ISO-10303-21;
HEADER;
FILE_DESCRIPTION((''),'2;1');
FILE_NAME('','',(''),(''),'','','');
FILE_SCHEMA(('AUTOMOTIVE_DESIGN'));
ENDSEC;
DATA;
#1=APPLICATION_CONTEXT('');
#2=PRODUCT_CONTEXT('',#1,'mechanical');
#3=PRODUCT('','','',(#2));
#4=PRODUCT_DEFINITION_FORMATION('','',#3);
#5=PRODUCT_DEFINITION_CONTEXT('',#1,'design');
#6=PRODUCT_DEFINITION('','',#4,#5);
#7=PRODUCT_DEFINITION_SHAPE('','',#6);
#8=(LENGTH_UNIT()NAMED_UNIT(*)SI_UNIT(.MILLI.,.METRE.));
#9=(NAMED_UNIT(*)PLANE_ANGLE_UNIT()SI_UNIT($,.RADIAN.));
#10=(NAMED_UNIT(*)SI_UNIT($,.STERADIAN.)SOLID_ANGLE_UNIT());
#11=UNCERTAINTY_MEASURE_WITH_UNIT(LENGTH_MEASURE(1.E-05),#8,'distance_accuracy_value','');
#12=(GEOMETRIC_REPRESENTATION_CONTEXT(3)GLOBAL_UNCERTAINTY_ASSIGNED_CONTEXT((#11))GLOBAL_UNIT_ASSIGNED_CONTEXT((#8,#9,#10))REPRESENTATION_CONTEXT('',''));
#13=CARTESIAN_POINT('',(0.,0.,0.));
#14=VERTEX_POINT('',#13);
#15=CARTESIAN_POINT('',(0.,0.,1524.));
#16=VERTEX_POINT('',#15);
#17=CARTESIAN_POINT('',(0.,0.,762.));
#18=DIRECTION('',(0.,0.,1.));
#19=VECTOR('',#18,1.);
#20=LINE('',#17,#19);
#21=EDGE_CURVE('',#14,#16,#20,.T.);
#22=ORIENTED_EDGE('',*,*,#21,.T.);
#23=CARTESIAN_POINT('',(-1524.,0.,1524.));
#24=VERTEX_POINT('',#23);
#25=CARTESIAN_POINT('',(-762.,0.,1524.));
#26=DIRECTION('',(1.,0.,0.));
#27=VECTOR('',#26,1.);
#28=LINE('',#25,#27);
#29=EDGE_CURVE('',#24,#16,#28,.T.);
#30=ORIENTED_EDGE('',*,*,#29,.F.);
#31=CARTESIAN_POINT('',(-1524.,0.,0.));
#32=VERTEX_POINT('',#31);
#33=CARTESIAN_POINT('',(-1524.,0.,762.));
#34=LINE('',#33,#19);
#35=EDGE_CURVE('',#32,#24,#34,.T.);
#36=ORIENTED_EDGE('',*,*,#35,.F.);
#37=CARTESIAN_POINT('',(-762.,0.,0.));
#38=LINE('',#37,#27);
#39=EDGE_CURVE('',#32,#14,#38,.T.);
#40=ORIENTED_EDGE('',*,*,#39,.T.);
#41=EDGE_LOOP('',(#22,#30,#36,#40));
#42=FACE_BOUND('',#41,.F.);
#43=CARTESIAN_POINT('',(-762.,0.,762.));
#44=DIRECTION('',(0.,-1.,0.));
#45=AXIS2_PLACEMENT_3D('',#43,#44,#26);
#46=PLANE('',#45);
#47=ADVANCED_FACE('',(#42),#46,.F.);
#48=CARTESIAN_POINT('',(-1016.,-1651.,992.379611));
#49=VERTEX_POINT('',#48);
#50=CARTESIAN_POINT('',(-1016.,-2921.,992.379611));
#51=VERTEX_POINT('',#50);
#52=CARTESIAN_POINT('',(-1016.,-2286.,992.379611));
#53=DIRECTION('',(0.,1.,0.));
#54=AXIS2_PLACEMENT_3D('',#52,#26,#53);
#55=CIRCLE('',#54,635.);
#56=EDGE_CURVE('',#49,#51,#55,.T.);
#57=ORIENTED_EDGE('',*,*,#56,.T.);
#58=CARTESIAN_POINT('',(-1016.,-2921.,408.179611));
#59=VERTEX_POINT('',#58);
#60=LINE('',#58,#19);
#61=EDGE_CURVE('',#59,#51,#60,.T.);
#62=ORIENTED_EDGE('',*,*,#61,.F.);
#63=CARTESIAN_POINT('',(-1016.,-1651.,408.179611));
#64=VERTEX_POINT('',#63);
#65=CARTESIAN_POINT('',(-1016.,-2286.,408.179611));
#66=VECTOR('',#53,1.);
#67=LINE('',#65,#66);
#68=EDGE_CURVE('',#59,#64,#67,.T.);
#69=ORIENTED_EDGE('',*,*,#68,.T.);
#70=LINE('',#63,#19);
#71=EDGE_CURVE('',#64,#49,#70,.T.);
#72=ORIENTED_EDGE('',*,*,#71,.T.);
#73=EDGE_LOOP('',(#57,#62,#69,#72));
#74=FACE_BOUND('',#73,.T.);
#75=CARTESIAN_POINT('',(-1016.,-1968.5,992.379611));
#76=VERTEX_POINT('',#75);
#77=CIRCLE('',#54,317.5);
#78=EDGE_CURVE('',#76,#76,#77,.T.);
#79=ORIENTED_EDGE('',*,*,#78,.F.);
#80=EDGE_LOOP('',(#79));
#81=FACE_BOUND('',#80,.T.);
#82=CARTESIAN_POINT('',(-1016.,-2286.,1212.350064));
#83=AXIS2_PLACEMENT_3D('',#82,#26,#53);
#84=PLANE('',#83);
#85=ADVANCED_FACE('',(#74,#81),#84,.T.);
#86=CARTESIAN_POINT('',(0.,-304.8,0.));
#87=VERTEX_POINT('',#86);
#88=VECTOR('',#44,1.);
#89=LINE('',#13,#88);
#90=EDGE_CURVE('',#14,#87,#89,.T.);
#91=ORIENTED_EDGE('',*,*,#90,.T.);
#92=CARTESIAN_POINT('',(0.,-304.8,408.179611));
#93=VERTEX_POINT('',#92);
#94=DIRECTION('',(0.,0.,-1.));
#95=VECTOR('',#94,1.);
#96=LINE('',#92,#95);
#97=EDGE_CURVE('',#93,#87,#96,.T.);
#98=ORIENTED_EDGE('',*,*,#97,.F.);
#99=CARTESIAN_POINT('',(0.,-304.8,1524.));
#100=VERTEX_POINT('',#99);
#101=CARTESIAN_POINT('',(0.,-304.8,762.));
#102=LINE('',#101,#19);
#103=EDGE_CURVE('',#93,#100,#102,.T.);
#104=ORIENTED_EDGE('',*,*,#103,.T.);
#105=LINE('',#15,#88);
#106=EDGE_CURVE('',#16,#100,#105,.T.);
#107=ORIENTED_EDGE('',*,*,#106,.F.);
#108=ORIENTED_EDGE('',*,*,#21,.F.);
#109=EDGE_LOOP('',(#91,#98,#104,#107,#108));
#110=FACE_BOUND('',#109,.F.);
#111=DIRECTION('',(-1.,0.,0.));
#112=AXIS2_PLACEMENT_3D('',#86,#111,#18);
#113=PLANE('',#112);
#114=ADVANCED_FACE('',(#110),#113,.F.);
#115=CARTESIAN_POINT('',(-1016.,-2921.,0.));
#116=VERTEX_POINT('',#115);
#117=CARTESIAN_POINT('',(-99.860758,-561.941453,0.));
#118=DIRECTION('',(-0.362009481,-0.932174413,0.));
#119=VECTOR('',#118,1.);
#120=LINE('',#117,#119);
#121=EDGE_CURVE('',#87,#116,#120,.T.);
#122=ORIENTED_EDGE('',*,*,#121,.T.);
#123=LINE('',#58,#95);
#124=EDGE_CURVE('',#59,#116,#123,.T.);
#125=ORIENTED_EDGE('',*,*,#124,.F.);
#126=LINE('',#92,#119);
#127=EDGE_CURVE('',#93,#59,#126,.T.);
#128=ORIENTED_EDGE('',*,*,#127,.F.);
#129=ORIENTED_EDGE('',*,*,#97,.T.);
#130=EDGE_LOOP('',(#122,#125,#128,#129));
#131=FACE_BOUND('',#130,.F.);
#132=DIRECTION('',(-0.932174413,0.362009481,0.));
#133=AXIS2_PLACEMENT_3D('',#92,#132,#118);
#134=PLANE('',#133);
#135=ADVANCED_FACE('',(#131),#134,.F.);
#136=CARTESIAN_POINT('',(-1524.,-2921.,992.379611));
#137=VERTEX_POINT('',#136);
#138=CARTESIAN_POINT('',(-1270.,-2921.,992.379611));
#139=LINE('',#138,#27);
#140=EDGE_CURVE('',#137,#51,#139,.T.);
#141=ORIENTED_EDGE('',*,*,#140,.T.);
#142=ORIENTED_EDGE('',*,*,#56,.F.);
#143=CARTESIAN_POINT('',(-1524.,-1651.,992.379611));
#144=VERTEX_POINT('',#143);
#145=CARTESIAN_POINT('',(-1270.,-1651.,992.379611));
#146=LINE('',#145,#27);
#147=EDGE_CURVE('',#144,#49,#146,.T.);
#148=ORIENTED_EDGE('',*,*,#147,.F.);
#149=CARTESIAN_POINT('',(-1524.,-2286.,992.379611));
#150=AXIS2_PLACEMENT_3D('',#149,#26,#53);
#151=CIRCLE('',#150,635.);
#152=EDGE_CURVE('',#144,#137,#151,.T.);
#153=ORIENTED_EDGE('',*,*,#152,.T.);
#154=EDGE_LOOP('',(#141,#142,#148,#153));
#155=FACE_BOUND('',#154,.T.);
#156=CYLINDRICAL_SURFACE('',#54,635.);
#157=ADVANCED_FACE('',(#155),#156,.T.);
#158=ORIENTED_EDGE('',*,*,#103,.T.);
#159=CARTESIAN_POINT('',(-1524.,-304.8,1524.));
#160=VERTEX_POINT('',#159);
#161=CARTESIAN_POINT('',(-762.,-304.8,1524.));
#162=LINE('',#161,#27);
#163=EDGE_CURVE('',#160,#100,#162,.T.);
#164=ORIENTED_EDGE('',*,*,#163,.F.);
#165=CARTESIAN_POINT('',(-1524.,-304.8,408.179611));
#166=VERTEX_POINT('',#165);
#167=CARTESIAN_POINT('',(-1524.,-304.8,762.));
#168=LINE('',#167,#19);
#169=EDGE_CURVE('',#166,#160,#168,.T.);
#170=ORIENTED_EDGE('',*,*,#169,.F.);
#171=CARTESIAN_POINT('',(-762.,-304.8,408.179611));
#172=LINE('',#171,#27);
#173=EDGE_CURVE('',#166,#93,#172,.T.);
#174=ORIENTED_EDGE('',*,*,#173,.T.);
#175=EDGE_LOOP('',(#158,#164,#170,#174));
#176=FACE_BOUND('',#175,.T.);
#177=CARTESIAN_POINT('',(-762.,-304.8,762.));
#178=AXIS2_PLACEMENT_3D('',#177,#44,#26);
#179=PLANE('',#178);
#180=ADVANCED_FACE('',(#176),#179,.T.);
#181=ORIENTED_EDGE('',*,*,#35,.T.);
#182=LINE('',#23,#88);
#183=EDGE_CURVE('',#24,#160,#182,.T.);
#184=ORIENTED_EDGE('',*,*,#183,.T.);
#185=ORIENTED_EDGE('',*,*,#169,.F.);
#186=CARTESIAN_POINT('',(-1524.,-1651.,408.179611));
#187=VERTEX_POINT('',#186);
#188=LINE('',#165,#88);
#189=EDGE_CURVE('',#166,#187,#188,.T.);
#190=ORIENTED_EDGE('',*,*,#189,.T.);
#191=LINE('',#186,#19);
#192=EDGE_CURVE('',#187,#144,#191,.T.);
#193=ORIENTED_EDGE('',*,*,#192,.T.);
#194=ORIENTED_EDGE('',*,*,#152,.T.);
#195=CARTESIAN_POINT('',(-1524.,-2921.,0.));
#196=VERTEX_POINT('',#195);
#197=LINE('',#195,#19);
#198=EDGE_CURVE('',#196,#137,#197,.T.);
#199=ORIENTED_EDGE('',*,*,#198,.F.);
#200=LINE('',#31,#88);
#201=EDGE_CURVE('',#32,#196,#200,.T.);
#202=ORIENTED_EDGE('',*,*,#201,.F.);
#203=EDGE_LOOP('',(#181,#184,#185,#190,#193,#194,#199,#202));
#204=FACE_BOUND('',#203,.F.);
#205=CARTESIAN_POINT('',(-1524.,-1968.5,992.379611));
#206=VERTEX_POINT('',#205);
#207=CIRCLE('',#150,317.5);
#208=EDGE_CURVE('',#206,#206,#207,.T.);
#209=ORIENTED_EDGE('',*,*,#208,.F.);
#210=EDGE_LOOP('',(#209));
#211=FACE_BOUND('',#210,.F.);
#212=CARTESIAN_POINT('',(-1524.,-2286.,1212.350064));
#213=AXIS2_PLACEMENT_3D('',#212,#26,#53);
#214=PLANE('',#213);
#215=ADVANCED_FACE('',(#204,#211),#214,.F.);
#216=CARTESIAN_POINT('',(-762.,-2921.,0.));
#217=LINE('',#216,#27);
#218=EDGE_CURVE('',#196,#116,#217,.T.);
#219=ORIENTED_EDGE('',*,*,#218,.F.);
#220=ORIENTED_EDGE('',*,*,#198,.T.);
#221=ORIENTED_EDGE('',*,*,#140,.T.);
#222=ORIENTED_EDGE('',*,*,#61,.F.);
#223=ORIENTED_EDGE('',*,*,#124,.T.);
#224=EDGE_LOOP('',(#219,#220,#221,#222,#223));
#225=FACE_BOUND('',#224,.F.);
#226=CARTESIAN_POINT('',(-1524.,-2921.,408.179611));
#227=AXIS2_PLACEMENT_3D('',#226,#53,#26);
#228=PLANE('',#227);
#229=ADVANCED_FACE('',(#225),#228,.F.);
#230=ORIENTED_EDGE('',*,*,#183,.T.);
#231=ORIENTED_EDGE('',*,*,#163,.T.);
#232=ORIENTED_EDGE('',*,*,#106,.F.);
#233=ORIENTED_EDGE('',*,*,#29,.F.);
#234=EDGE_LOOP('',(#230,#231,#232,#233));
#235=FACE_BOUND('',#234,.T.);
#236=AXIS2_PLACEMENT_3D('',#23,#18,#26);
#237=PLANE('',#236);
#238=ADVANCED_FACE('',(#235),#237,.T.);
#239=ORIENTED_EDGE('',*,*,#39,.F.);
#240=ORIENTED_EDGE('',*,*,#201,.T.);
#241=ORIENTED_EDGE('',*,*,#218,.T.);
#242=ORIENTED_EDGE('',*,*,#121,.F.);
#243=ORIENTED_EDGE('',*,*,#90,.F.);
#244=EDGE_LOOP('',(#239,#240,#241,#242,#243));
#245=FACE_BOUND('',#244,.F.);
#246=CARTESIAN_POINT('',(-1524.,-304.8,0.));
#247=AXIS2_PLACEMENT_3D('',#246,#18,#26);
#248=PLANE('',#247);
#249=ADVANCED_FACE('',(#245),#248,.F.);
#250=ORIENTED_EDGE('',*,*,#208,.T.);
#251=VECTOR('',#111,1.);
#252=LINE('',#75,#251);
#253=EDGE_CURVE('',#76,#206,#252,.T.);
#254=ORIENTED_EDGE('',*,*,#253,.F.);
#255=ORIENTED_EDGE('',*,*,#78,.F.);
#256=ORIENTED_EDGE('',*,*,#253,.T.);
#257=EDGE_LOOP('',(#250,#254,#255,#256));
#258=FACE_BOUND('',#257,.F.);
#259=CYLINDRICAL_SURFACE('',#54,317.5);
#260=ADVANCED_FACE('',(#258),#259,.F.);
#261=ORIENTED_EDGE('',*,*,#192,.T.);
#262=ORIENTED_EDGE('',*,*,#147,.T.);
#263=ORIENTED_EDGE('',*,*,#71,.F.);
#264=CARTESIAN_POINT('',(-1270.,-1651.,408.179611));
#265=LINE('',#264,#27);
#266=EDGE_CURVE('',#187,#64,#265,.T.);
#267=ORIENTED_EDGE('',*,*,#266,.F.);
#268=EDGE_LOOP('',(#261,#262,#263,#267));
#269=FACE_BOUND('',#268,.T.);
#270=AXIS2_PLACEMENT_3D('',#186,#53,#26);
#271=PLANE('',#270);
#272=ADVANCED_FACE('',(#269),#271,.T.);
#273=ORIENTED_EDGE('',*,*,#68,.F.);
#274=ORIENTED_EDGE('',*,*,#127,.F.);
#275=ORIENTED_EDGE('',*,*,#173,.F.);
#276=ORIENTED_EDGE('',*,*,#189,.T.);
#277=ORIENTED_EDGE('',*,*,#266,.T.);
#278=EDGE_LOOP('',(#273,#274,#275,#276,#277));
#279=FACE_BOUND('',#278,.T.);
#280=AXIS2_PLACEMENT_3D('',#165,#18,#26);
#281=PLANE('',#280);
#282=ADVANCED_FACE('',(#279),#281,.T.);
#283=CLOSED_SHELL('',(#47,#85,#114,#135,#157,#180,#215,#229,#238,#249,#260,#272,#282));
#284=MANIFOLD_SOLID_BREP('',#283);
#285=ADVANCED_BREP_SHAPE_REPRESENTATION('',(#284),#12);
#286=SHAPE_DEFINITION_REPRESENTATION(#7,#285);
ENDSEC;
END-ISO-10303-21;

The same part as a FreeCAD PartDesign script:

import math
import FreeCAD as App
import Part
import Sketcher

V = App.Vector
Q = App.Units.Quantity


def add_polygon(sketch, points):
    """Adds a closed chain of lines whose ends are joined by coincident constraints."""
    first, n = sketch.GeometryCount, len(points)
    for a, b in zip(points, points[1:] + points[:1]):
        sketch.addGeometry(Part.LineSegment(App.Vector(*a, 0), App.Vector(*b, 0)), False)
    for i in range(n):
        sketch.addConstraint(Sketcher.Constraint("Coincident", first + i, 2, first + (i + 1) % n, 1))

doc = App.newDocument("Part")
body = doc.addObject("PartDesign::Body", "Body")

sketch1 = body.newObject("Sketcher::SketchObject", "Sketch")
sketch1.AttachmentSupport = (doc.getObject("XZ_Plane"), [""])
sketch1.MapMode = "FlatFace"
add_polygon(sketch1, [(-1524, 1524), (-1524, 0), (0, 0), (0, 1524)])
sketch1.addConstraint([
    Sketcher.Constraint("Vertical", 0),
    Sketcher.Constraint("Horizontal", 1),
    Sketcher.Constraint("Vertical", 2),
    Sketcher.Constraint("Horizontal", 3),
    Sketcher.Constraint("Coincident", 1, 2, -1, 1),
    Sketcher.Constraint("Equal", 3, 0),
    Sketcher.Constraint("DistanceX", 1, 1, 1, 2, Q("60 in")),
])
pad1 = body.newObject("PartDesign::Pad", "Pad")
pad1.Profile = sketch1
pad1.Length = Q("12 in")

sketch2 = body.newObject("Sketcher::SketchObject", "Sketch001")
sketch2.AttachmentSupport = (doc.getObject("XZ_Plane"), [""])
sketch2.MapMode = "FlatFace"
sketch2.AttachmentOffset = App.Placement(V(0, 0, 12 * 25.4), App.Rotation())
add_polygon(sketch2, [(-1524, 408), (-1524, 0), (0, 0), (0, 408)])
sketch2.addConstraint([
    Sketcher.Constraint("Vertical", 0),
    Sketcher.Constraint("Horizontal", 1),
    Sketcher.Constraint("Vertical", 2),
    Sketcher.Constraint("Horizontal", 3),
    Sketcher.Constraint("Coincident", 1, 2, -1, 1),
    Sketcher.Constraint("DistanceX", 1, 1, 1, 2, Q("60 in")),
    Sketcher.Constraint("DistanceY", 0, 2, 0, 1, 408.179611),
])
pad2 = body.newObject("PartDesign::Pad", "Pad001")
pad2.Profile = sketch2
pad2.Length = Q("103 in")

sketch3 = body.newObject("Sketcher::SketchObject", "Sketch002")
sketch3.AttachmentSupport = (doc.getObject("XY_Plane"), [""])
sketch3.MapMode = "FlatFace"
sketch3.AttachmentOffset = App.Placement(V(0, 0, 408.179611), App.Rotation())
add_polygon(sketch3, [(-1524, -1651), (-1524, -2921), (-1016, -2921), (-1016, -1651)])
sketch3.addConstraint([
    Sketcher.Constraint("Vertical", 0),
    Sketcher.Constraint("Horizontal", 1),
    Sketcher.Constraint("Vertical", 2),
    Sketcher.Constraint("Horizontal", 3),
    Sketcher.Constraint("DistanceX", 1, 1, 1, 2, Q("20 in")),
    Sketcher.Constraint("DistanceY", 0, 2, 0, 1, Q("50 in")),
    Sketcher.Constraint("DistanceX", 0, 2, -1, 1, Q("60 in")),
    Sketcher.Constraint("DistanceY", 0, 2, -1, 1, Q("115 in")),
])
pad3 = body.newObject("PartDesign::Pad", "Pad002")
pad3.Profile = sketch3
pad3.Length = Q("23 in")

sketch4 = body.newObject("Sketcher::SketchObject", "Sketch003")
sketch4.AttachmentSupport = (doc.getObject("YZ_Plane"), [""])
sketch4.MapMode = "FlatFace"
sketch4.AttachmentOffset = App.Placement(V(0, 0, -40 * 25.4), App.Rotation())
sketch4.addGeometry([
    Part.LineSegment(V(-2921, 992, 0), V(-1651, 992, 0)),
    Part.ArcOfCircle(Part.Circle(V(-2286, 992, 0), V(0, 0, 1), 635), math.radians(0), math.radians(180)),
], False)
sketch4.addConstraint([
    Sketcher.Constraint("Coincident", 0, 1, 1, 2),
    Sketcher.Constraint("Coincident", 1, 1, 0, 2),
    Sketcher.Constraint("Horizontal", 0),
    Sketcher.Constraint("Horizontal", 1, 3, 0, 1),
    Sketcher.Constraint("Radius", 1, Q("25 in")),
    Sketcher.Constraint("DistanceX", 1, 3, -1, 1, Q("90 in")),
    Sketcher.Constraint("DistanceY", -1, 1, 1, 3, 992.379611),
])
pad4 = body.newObject("PartDesign::Pad", "Pad003")
pad4.Profile = sketch4
pad4.Length = Q("20 in")
pad4.Reversed = True

sketch5 = body.newObject("Sketcher::SketchObject", "Sketch004")
sketch5.AttachmentSupport = (doc.getObject("YZ_Plane"), [""])
sketch5.MapMode = "FlatFace"
sketch5.AttachmentOffset = App.Placement(V(0, 0, -40 * 25.4), App.Rotation())
sketch5.addGeometry(Part.Circle(V(-2286, 992, 0), V(0, 0, 1), 318), False)
sketch5.addConstraint([
    Sketcher.Constraint("Diameter", 0, Q("25 in")),
    Sketcher.Constraint("DistanceX", 0, 3, -1, 1, Q("90 in")),
    Sketcher.Constraint("DistanceY", -1, 1, 0, 3, 992.379611),
])
pocket1 = body.newObject("PartDesign::Pocket", "Pocket")
pocket1.Profile = sketch5
pocket1.Length = Q("20 in")

sketch6 = body.newObject("Sketcher::SketchObject", "Sketch005")
sketch6.AttachmentSupport = (doc.getObject("XY_Plane"), [""])
sketch6.MapMode = "FlatFace"
sketch6.AttachmentOffset = App.Placement(V(0, 0, 408.179611), App.Rotation())
add_polygon(sketch6, [(0, -305), (-1016, -2921), (0, -2921)])
sketch6.addConstraint([
    Sketcher.Constraint("Horizontal", 1),
    Sketcher.Constraint("Vertical", 2),
    Sketcher.Constraint("PointOnObject", 1, 2, -2),
    Sketcher.Constraint("DistanceX", 1, 1, 1, 2, Q("40 in")),
    Sketcher.Constraint("DistanceY", 2, 1, 2, 2, Q("103 in")),
    Sketcher.Constraint("DistanceY", 0, 2, -1, 1, Q("115 in")),
])
pocket2 = body.newObject("PartDesign::Pocket", "Pocket001")
pocket2.Profile = sketch6
pocket2.Length = Q("22.8 in")

doc.recompute()
